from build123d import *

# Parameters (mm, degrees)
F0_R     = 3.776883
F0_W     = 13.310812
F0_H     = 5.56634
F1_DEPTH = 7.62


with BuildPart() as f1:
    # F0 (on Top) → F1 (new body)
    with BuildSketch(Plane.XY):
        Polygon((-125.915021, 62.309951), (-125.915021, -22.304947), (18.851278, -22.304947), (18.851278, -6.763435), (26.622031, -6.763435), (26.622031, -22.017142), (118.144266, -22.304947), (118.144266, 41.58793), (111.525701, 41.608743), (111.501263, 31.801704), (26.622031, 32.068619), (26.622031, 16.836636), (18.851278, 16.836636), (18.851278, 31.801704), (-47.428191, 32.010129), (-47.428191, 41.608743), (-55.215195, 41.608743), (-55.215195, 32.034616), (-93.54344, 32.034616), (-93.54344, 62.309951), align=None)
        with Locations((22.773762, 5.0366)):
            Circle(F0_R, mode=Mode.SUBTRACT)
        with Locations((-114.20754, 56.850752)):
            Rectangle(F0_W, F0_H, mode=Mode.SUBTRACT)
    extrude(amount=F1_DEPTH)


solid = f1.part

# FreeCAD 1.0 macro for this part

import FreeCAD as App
import Part
import Sketcher
from FreeCAD import Vector

doc = App.newDocument("Part")
params = doc.addObject("Spreadsheet::Sheet", "Params")
for row, (alias, value) in enumerate([
    ("pad1_length", "0.3 in"),
], start=1):
    params.set(f"A{row}", alias)
    params.set(f"B{row}", "=" + value)
    params.setAlias(f"B{row}", alias)

body = doc.addObject("PartDesign::Body", "Body")

sketch1 = body.newObject("Sketcher::SketchObject", "Sketch")
sketch1.AttachmentSupport = (doc.getObject("XY_Plane"), [""])
sketch1.MapMode = "FlatFace"
sketch1.addGeometry([
    Part.LineSegment(Vector(-125.915021, 62.309951, 0), Vector(-125.915021, -22.304947, 0)),
    Part.LineSegment(Vector(-125.915021, -22.304947, 0), Vector(18.851278, -22.304947, 0)),
    Part.LineSegment(Vector(18.851278, -22.304947, 0), Vector(18.851278, -6.763435, 0)),
    Part.LineSegment(Vector(18.851278, -6.763435, 0), Vector(26.622031, -6.763435, 0)),
    Part.LineSegment(Vector(26.622031, -6.763435, 0), Vector(26.622031, -22.017142, 0)),
    Part.LineSegment(Vector(26.622031, -22.017142, 0), Vector(118.144266, -22.304947, 0)),
    Part.LineSegment(Vector(118.144266, -22.304947, 0), Vector(118.144266, 41.58793, 0)),
    Part.LineSegment(Vector(118.144266, 41.58793, 0), Vector(111.525701, 41.608743, 0)),
    Part.LineSegment(Vector(111.525701, 41.608743, 0), Vector(111.501263, 31.801704, 0)),
    Part.LineSegment(Vector(111.501263, 31.801704, 0), Vector(26.622031, 32.068619, 0)),
    Part.LineSegment(Vector(26.622031, 32.068619, 0), Vector(26.622031, 16.836636, 0)),
    Part.LineSegment(Vector(26.622031, 16.836636, 0), Vector(18.851278, 16.836636, 0)),
    Part.LineSegment(Vector(18.851278, 16.836636, 0), Vector(18.851278, 31.801704, 0)),
    Part.LineSegment(Vector(18.851278, 31.801704, 0), Vector(-47.428191, 32.010129, 0)),
    Part.LineSegment(Vector(-47.428191, 32.010129, 0), Vector(-47.428191, 41.608743, 0)),
    Part.LineSegment(Vector(-47.428191, 41.608743, 0), Vector(-55.215195, 41.608743, 0)),
    Part.LineSegment(Vector(-55.215195, 41.608743, 0), Vector(-55.215195, 32.034616, 0)),
    Part.LineSegment(Vector(-55.215195, 32.034616, 0), Vector(-93.54344, 32.034616, 0)),
    Part.LineSegment(Vector(-93.54344, 32.034616, 0), Vector(-93.54344, 62.309951, 0)),
    Part.LineSegment(Vector(-93.54344, 62.309951, 0), Vector(-125.915021, 62.309951, 0)),
    Part.Circle(Vector(22.773762, 5.0366, 0), Vector(0, 0, 1), 3.776883),
    Part.LineSegment(Vector(-107.552134, 54.067582, 0), Vector(-120.862946, 54.067582, 0)),
    Part.LineSegment(Vector(-120.862946, 54.067582, 0), Vector(-120.862946, 59.633922, 0)),
    Part.LineSegment(Vector(-120.862946, 59.633922, 0), Vector(-107.552134, 59.633922, 0)),
    Part.LineSegment(Vector(-107.552134, 59.633922, 0), Vector(-107.552134, 54.067582, 0)),
], False)
sketch1.addConstraint([
    Sketcher.Constraint("Coincident", 0, 2, 1, 1),
    Sketcher.Constraint("Coincident", 1, 2, 2, 1),
    Sketcher.Constraint("Coincident", 2, 2, 3, 1),
    Sketcher.Constraint("Coincident", 3, 2, 4, 1),
    Sketcher.Constraint("Coincident", 4, 2, 5, 1),
    Sketcher.Constraint("Coincident", 5, 2, 6, 1),
    Sketcher.Constraint("Coincident", 6, 2, 7, 1),
    Sketcher.Constraint("Coincident", 7, 2, 8, 1),
    Sketcher.Constraint("Coincident", 8, 2, 9, 1),
    Sketcher.Constraint("Coincident", 9, 2, 10, 1),
    Sketcher.Constraint("Coincident", 10, 2, 11, 1),
    Sketcher.Constraint("Coincident", 11, 2, 12, 1),
    Sketcher.Constraint("Coincident", 12, 2, 13, 1),
    Sketcher.Constraint("Coincident", 13, 2, 14, 1),
    Sketcher.Constraint("Coincident", 14, 2, 15, 1),
    Sketcher.Constraint("Coincident", 15, 2, 16, 1),
    Sketcher.Constraint("Coincident", 16, 2, 17, 1),
    Sketcher.Constraint("Coincident", 17, 2, 18, 1),
    Sketcher.Constraint("Coincident", 18, 2, 19, 1),
    Sketcher.Constraint("Coincident", 19, 2, 0, 1),
    Sketcher.Constraint("Coincident", 21, 2, 22, 1),
    Sketcher.Constraint("Coincident", 22, 2, 23, 1),
    Sketcher.Constraint("Coincident", 23, 2, 24, 1),
    Sketcher.Constraint("Coincident", 24, 2, 21, 1),
    Sketcher.Constraint("Vertical", 0),
    Sketcher.Constraint("Horizontal", 1),
    Sketcher.Constraint("Vertical", 2),
    Sketcher.Constraint("Horizontal", 3),
    Sketcher.Constraint("Vertical", 4),
    Sketcher.Constraint("Vertical", 6),
    Sketcher.Constraint("Vertical", 10),
    Sketcher.Constraint("Horizontal", 11),
    Sketcher.Constraint("Vertical", 12),
    Sketcher.Constraint("Vertical", 14),
    Sketcher.Constraint("Horizontal", 15),
    Sketcher.Constraint("Vertical", 16),
    Sketcher.Constraint("Horizontal", 17),
    Sketcher.Constraint("Vertical", 18),
    Sketcher.Constraint("Horizontal", 19),
    Sketcher.Constraint("Horizontal", 21),
    Sketcher.Constraint("Vertical", 22),
    Sketcher.Constraint("Horizontal", 23),
    Sketcher.Constraint("Vertical", 24),
    Sketcher.Constraint("Parallel", 5, 7),
    Sketcher.Constraint("Parallel", 7, 9),
    Sketcher.Constraint("Parallel", 9, 13),
    Sketcher.Constraint("Horizontal", 1, 2, 5, 2),
    Sketcher.Constraint("Horizontal", 8, 2, 12, 2),
    Sketcher.Constraint("Horizontal", 7, 2, 14, 2),
    Sketcher.Constraint("Vertical", 4, 2, 9, 2),
    Sketcher.Constraint("Vertical", 2, 2, 11, 2),
    Sketcher.Constraint("Diameter", 20, 7.553766),
    Sketcher.Constraint("DistanceX", 1, 1, 1, 2, 144.766299),
    Sketcher.Constraint("DistanceX", 19, 2, 19, 1, 32.371581),
    Sketcher.Constraint("DistanceX", 21, 2, 21, 1, 13.310812),
    Sketcher.Constraint("DistanceY", 2, 1, 2, 2, 15.541512),
    Sketcher.Constraint("DistanceY", 12, 1, 12, 2, 14.965068),
    Sketcher.Constraint("DistanceY", 22, 1, 22, 2, 5.56634),
    Sketcher.Constraint("DistanceY", -1, 1, 20, 3, 5.0366),
    Sketcher.Constraint("DistanceX", -1, 1, 7, 2, 111.525701),
    Sketcher.Constraint("DistanceX", 20, 3, 8, 2, 88.727501),
    Sketcher.Constraint("Distance", 8, 9.807069),
    Sketcher.Constraint("Distance", 9, 84.879652),
    Sketcher.Constraint("DistanceX", 3, 1, 3, 2, 7.770753),
    Sketcher.Constraint("DistanceX", 15, 2, 15, 1, 7.787004),
    Sketcher.Constraint("DistanceX", 17, 2, 17, 1, 38.328245),
    Sketcher.Constraint("DistanceY", 0, 2, 0, 1, 84.614898),
    Sketcher.Constraint("DistanceY", 4, 2, 4, 1, 15.253707),
    Sketcher.Constraint("DistanceY", 6, 1, 6, 2, 63.892877),
    Sketcher.Constraint("DistanceY", 16, 2, 16, 1, 9.574127),
    Sketcher.Constraint("DistanceX", 0, 2, -1, 1, 125.915021),
    Sketcher.Constraint("DistanceY", 4, 2, -1, 1, 22.017142),
    Sketcher.Constraint("DistanceY", -1, 1, 22, 2, 59.633922),
    Sketcher.Constraint("DistanceX", 1, 2, 5, 2, 99.292988),
    Sketcher.Constraint("DistanceX", 21, 2, 15, 2, 65.647751),
])
pad1 = body.newObject("PartDesign::Pad", "Pad")
pad1.Profile = sketch1
pad1.setExpression("Length", "Params.pad1_length")

doc.recompute()
